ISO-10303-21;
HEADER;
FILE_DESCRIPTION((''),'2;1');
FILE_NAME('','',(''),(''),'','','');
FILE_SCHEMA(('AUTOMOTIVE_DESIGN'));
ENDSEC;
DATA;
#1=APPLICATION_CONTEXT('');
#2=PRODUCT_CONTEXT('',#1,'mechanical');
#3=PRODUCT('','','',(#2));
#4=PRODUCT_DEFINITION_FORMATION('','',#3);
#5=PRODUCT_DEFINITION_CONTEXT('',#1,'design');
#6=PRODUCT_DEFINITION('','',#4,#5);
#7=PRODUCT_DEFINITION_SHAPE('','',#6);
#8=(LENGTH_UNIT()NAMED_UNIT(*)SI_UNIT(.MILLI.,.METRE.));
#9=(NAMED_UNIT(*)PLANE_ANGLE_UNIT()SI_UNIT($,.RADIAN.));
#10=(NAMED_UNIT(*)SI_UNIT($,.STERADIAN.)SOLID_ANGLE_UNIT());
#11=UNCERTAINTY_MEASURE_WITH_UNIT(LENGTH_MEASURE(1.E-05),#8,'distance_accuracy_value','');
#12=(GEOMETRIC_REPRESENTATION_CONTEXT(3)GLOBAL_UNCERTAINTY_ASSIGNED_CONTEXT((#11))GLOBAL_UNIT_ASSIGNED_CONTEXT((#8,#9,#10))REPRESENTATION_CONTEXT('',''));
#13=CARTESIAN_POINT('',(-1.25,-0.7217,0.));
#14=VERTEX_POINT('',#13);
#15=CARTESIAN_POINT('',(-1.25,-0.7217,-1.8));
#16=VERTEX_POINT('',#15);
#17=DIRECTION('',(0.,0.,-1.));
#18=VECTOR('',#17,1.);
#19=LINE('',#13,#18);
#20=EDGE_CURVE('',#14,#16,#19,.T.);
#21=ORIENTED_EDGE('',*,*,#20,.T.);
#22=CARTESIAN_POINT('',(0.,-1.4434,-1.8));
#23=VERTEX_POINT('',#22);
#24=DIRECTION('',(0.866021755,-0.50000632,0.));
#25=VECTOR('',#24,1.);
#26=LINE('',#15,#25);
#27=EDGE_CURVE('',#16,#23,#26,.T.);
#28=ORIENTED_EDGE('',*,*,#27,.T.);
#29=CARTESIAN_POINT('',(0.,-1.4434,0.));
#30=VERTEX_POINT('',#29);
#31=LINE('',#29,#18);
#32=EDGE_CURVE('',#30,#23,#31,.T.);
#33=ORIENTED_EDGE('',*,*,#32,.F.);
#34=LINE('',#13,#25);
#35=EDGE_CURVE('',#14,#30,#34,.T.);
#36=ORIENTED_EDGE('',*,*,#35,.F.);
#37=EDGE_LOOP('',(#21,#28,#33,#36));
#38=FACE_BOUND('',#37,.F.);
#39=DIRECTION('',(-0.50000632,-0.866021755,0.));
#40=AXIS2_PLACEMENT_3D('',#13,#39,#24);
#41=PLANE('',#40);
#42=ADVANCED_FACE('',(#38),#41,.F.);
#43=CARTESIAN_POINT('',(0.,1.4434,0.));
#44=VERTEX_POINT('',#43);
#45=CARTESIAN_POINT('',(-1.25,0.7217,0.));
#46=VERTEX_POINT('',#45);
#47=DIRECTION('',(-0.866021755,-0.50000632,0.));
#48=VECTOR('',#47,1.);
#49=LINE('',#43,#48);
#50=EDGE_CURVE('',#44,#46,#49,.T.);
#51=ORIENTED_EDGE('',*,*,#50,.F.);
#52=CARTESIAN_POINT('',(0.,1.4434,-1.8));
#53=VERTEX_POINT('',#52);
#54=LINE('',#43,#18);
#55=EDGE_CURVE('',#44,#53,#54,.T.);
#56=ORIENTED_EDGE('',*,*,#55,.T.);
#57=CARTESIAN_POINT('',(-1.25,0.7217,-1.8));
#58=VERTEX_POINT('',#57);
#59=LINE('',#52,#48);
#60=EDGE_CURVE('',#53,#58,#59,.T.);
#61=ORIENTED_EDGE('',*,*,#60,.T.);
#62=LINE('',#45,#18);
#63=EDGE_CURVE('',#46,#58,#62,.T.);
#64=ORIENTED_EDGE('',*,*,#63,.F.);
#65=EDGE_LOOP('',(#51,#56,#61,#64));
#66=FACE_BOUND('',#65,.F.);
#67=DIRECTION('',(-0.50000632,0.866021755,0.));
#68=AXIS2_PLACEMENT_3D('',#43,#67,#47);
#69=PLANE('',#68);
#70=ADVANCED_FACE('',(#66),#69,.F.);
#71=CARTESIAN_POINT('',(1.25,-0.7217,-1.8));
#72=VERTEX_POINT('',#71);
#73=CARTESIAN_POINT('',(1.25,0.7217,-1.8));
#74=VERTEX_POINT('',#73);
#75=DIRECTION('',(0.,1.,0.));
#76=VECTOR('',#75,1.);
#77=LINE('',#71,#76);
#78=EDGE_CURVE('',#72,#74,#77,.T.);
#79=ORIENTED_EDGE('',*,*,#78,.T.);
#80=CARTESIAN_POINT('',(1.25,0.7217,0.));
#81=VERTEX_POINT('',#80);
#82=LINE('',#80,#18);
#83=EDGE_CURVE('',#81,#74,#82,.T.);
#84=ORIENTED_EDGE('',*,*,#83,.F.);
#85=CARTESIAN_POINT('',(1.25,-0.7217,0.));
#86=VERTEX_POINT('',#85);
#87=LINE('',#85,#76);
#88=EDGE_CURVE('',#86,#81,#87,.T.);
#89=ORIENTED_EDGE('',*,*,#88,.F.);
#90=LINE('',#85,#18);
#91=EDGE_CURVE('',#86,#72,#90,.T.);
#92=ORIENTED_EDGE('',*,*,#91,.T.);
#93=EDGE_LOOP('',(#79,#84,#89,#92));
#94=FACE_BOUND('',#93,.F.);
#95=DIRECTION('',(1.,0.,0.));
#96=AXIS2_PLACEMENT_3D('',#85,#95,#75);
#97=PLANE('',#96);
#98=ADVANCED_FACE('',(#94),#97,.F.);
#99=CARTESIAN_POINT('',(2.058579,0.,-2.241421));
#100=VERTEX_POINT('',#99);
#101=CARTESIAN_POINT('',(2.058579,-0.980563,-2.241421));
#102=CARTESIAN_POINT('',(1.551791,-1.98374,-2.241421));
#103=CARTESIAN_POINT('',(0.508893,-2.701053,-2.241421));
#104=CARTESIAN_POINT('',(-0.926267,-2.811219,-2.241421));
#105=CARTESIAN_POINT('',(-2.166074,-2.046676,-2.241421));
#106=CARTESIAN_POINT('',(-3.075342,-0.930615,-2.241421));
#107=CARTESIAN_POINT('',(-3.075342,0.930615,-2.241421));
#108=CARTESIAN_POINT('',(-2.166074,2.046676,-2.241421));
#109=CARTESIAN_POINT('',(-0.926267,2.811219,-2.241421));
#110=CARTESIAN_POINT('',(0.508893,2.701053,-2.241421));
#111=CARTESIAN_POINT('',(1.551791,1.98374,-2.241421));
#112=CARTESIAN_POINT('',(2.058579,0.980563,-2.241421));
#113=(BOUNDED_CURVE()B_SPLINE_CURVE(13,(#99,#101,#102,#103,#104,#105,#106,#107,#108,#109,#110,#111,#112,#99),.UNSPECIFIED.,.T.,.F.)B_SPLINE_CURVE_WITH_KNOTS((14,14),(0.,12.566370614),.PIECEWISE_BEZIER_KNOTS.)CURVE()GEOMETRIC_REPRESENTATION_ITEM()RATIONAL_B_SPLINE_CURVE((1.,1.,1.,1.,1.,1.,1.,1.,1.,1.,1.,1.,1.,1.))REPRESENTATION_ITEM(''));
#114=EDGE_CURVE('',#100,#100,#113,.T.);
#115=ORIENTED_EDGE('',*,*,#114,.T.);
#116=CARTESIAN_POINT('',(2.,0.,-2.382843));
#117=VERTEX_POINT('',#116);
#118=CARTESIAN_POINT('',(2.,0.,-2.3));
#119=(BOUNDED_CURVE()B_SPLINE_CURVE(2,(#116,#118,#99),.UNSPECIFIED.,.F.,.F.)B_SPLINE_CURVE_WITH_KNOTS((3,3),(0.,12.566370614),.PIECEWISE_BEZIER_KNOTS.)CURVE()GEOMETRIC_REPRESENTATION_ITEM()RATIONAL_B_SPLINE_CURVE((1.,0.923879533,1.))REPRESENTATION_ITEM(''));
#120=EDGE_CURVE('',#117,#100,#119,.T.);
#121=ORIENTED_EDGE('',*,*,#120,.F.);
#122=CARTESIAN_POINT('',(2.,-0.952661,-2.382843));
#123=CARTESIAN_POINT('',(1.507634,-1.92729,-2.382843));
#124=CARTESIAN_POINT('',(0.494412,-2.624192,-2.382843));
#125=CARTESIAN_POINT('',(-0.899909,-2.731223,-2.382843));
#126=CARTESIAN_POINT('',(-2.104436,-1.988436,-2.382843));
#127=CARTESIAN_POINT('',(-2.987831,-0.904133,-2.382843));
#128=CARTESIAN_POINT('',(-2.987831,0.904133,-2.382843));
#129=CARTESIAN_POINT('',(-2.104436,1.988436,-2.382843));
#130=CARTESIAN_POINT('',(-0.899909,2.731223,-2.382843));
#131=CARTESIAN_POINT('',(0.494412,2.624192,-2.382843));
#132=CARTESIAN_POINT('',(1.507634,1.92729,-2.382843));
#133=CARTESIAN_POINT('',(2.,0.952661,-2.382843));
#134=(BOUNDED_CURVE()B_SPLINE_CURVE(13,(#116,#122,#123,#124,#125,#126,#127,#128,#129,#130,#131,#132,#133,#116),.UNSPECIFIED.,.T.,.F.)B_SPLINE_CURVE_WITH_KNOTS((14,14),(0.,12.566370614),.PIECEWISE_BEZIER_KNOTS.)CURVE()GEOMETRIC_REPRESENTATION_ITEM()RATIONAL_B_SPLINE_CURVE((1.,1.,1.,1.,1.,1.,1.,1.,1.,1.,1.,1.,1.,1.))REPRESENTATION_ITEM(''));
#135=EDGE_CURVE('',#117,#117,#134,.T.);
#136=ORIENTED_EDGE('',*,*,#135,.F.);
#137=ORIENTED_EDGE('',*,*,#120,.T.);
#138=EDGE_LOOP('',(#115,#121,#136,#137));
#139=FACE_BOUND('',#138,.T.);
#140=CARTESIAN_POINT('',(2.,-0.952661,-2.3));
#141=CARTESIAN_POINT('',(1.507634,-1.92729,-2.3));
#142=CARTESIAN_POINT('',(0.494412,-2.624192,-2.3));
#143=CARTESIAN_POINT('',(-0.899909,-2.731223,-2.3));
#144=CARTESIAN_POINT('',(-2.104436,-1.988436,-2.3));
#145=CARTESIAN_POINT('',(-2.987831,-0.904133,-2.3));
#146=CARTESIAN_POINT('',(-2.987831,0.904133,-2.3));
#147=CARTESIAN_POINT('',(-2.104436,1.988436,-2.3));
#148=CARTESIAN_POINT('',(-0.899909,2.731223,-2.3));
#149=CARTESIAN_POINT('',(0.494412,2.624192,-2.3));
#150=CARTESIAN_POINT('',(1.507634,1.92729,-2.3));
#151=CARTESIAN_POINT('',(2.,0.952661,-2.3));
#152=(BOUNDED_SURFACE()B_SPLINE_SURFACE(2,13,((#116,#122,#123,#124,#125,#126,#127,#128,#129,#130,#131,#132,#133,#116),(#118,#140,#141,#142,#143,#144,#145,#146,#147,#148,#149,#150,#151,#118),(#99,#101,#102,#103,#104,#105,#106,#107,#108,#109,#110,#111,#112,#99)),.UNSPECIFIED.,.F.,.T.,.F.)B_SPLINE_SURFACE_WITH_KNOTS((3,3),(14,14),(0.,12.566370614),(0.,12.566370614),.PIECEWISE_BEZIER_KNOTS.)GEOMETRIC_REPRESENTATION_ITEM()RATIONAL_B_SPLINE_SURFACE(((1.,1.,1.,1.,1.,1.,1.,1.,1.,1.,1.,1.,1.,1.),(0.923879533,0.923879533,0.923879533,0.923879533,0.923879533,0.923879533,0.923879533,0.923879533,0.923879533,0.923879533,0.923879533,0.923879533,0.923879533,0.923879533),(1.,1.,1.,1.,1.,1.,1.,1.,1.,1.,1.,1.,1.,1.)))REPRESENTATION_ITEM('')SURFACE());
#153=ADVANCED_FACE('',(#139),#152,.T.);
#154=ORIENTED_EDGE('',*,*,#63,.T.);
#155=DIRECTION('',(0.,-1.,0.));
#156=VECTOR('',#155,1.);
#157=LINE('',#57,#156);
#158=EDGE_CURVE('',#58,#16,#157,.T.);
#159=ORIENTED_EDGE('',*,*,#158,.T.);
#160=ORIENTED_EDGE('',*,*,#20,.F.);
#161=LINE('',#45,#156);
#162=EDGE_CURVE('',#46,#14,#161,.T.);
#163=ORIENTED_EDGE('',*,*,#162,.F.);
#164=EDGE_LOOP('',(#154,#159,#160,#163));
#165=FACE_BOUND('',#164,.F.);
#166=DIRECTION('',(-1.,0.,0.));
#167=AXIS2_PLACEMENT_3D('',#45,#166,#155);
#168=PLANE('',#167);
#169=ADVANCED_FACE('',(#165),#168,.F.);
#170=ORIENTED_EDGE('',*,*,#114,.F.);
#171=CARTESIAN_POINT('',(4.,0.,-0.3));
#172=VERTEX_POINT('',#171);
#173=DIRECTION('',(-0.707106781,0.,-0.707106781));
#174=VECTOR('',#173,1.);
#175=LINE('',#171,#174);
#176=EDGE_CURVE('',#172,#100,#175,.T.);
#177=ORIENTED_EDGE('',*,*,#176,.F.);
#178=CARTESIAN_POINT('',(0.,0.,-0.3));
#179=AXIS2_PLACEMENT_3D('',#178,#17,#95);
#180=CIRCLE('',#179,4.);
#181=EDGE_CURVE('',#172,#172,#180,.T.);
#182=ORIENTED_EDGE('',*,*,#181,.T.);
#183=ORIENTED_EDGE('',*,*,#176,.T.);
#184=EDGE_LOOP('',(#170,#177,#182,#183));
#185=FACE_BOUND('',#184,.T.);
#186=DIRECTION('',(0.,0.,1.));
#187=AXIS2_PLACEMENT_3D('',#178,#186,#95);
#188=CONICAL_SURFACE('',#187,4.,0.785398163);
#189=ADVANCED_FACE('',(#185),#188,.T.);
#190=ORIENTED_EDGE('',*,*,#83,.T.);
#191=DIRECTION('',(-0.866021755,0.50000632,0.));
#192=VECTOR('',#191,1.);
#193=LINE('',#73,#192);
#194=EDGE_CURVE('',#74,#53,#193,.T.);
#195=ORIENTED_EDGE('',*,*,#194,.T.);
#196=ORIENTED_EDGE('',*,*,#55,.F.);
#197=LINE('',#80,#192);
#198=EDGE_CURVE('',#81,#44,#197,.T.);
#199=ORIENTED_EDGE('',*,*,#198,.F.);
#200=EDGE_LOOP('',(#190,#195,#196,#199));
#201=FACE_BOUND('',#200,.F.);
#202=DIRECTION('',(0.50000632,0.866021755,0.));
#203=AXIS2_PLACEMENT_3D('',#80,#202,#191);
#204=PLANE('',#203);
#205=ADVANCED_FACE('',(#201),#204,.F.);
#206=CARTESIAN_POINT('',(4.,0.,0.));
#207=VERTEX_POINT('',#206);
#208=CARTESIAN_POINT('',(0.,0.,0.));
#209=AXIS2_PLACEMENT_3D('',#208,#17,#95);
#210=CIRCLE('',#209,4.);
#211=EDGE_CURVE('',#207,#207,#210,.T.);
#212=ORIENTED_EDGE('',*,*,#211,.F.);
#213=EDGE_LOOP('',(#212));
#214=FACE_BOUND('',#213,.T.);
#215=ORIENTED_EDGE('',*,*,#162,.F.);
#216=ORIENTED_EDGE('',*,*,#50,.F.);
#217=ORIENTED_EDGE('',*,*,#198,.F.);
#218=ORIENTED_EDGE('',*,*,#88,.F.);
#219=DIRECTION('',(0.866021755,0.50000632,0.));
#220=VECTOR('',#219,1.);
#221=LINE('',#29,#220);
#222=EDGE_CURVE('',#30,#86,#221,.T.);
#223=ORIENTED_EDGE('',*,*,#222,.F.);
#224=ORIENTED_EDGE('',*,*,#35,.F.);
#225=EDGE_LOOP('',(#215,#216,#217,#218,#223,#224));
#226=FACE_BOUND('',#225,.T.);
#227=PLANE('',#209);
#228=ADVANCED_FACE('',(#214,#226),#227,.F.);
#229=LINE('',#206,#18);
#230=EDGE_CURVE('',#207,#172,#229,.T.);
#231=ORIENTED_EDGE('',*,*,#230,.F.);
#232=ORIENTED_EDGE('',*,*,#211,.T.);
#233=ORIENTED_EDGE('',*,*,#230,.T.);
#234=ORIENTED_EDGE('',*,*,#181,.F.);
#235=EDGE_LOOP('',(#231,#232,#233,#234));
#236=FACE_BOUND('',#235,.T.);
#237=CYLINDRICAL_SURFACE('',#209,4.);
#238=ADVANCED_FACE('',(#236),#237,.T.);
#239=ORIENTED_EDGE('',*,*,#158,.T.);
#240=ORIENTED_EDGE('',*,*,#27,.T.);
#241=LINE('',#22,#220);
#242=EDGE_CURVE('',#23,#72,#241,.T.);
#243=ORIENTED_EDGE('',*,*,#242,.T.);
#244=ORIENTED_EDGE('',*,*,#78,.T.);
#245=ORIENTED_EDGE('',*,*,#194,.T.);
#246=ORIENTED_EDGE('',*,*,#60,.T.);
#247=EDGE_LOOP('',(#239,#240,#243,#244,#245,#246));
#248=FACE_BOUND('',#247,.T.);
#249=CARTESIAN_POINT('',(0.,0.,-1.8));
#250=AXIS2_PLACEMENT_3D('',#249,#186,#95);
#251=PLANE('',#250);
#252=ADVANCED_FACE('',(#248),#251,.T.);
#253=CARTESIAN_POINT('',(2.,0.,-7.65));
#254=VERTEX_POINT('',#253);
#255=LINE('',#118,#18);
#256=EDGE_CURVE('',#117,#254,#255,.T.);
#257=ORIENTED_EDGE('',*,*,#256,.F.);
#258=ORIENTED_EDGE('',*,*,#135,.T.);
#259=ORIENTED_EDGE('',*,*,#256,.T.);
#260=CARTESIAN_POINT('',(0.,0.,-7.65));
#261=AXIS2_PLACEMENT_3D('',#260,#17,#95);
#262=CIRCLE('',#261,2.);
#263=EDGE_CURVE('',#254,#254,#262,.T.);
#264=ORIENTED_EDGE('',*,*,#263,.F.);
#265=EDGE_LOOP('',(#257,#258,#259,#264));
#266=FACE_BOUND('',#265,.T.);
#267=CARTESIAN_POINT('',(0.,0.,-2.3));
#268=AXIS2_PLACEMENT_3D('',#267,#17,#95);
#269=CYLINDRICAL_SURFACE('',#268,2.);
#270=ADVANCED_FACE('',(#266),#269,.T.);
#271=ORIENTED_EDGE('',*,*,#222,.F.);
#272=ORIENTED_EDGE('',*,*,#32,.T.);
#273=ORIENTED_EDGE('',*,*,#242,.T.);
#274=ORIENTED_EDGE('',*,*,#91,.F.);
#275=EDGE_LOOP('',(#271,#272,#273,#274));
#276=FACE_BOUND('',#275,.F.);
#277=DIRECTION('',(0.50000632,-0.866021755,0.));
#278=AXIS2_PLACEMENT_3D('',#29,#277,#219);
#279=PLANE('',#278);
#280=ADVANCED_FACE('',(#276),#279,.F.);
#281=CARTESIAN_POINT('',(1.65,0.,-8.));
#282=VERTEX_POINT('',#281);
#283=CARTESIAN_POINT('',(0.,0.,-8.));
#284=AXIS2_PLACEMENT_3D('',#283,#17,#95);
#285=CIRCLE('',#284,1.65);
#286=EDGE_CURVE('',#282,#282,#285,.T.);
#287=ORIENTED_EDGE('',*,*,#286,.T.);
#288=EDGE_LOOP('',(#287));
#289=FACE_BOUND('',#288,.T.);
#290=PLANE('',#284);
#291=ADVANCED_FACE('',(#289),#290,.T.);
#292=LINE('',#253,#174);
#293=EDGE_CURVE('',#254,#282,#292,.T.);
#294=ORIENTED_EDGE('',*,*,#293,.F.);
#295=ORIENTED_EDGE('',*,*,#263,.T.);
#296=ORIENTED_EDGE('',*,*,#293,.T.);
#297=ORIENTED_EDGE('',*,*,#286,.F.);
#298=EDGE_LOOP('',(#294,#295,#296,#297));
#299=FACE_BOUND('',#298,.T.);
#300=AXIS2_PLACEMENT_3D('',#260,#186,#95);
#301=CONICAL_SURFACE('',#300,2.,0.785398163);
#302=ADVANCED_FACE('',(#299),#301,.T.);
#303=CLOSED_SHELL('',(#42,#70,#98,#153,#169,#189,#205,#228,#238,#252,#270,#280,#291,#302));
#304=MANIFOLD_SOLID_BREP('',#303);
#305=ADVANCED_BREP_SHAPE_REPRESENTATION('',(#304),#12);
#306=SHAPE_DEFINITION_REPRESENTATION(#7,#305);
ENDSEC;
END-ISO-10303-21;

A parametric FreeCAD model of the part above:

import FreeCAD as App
import Part
import Sketcher
Q = App.Units.Quantity


def edges_at(feature, points):
    """Names of the edges that pass closest to the given points."""
    edges = feature.Shape.Edges
    near = lambda p: min(range(len(edges)), key=lambda i: edges[i].distToShape(Part.Vertex(*p))[0])
    return sorted({f"Edge{near(p) + 1}" for p in points})

doc = App.newDocument("Part")
params = doc.addObject("Spreadsheet::Sheet", "Params")
for row, (alias, value) in enumerate([
    ("sketch1_width", "2 mm"),
    ("sketch1_width2", "4 mm"),
    ("sketch1_height", "8 mm"),
    ("sketch1_height2", "0.3 mm"),
    ("revolution_angle", "360 deg"),
    ("pocket1_length", "1.8 mm"),
    ("fillet_radius", "0.2 mm"),
    ("chamfer_size", "0.35 mm"),
], start=1):
    params.set(f"A{row}", alias)
    params.set(f"B{row}", "=" + value)
    params.setAlias(f"B{row}", alias)

body = doc.addObject("PartDesign::Body", "Body")

sketch1 = body.newObject("Sketcher::SketchObject", "Sketch")
sketch1.AttachmentSupport = (doc.getObject("XZ_Plane"), [""])
sketch1.MapMode = "FlatFace"
sketch1.addGeometry([
    Part.LineSegment(App.Vector(2, -2.3, 0), App.Vector(2, -8, 0)),
    Part.LineSegment(App.Vector(2, -8, 0), App.Vector(0, -8, 0)),
    Part.LineSegment(App.Vector(0, -8, 0), App.Vector(0, 0, 0)),
    Part.LineSegment(App.Vector(0, 0, 0), App.Vector(4, 0, 0)),
    Part.LineSegment(App.Vector(4, 0, 0), App.Vector(4, -0.3, 0)),
    Part.LineSegment(App.Vector(4, -0.3, 0), App.Vector(2, -2.3, 0)),
], False)
sketch1.addConstraint([
    Sketcher.Constraint("Coincident", 0, 2, 1, 1),
    Sketcher.Constraint("Coincident", 1, 2, 2, 1),
    Sketcher.Constraint("Coincident", 2, 2, 3, 1),
    Sketcher.Constraint("Coincident", 3, 2, 4, 1),
    Sketcher.Constraint("Coincident", 4, 2, 5, 1),
    Sketcher.Constraint("Coincident", 5, 2, 0, 1),
    Sketcher.Constraint("Vertical", 0),
    Sketcher.Constraint("Horizontal", 1),
    Sketcher.Constraint("Vertical", 2),
    Sketcher.Constraint("Horizontal", 3),
    Sketcher.Constraint("Vertical", 4),
    Sketcher.Constraint("Coincident", 2, 2, -1, 1),
    Sketcher.Constraint("DistanceX", 1, 2, 1, 1, Q("2 mm")),
    Sketcher.Constraint("DistanceX", 3, 1, 3, 2, Q("4 mm")),
    Sketcher.Constraint("DistanceY", 2, 1, 2, 2, Q("8 mm")),
    Sketcher.Constraint("DistanceY", 4, 2, 4, 1, Q("0.3 mm")),
    Sketcher.Constraint("DistanceY", 5, 2, 4, 2, Q("2 mm")),
])
sketch1.setExpression("Constraints[12]", "Params.sketch1_width")
sketch1.setExpression("Constraints[13]", "Params.sketch1_width2")
sketch1.setExpression("Constraints[14]", "Params.sketch1_height")
sketch1.setExpression("Constraints[15]", "Params.sketch1_height2")
revolution = body.newObject("PartDesign::Revolution", "Revolution")
revolution.Profile = sketch1
revolution.ReferenceAxis = (sketch1, ["V_Axis"])
revolution.setExpression("Angle", "Params.revolution_angle")

sketch2 = body.newObject("Sketcher::SketchObject", "Sketch001")
sketch2.AttachmentSupport = (doc.getObject("XY_Plane"), [""])
sketch2.MapMode = "FlatFace"
sketch2.addGeometry([
    Part.LineSegment(App.Vector(0, 1.4434, 0), App.Vector(-1.25, 0.7217, 0)),
    Part.LineSegment(App.Vector(-1.25, 0.7217, 0), App.Vector(-1.25, -0.7217, 0)),
    Part.LineSegment(App.Vector(-1.25, -0.7217, 0), App.Vector(0, -1.4434, 0)),
    Part.LineSegment(App.Vector(0, -1.4434, 0), App.Vector(1.25, -0.7217, 0)),
    Part.LineSegment(App.Vector(1.25, -0.7217, 0), App.Vector(1.25, 0.7217, 0)),
    Part.LineSegment(App.Vector(1.25, 0.7217, 0), App.Vector(0, 1.4434, 0)),
], False)
sketch2.addConstraint([
    Sketcher.Constraint("Coincident", 0, 2, 1, 1),
    Sketcher.Constraint("Coincident", 1, 2, 2, 1),
    Sketcher.Constraint("Coincident", 2, 2, 3, 1),
    Sketcher.Constraint("Coincident", 3, 2, 4, 1),
    Sketcher.Constraint("Coincident", 4, 2, 5, 1),
    Sketcher.Constraint("Coincident", 5, 2, 0, 1),
    Sketcher.Constraint("Vertical", 1),
    Sketcher.Constraint("Vertical", 4),
    Sketcher.Constraint("Symmetric", 0, 2, 3, 2, -1, 1),
    Sketcher.Constraint("Symmetric", 2, 2, 5, 2, -1, 1),
    Sketcher.Constraint("PointOnObject", 2, 2, -2),
    Sketcher.Constraint("Parallel", 2, 5),
    Sketcher.Constraint("Horizontal", 1, 2, 3, 2),
    Sketcher.Constraint("DistanceX", 1, 2, 3, 2, Q("2.5 mm")),
    Sketcher.Constraint("Angle", 0, Q("-149.9996 deg")),
    Sketcher.Constraint("DistanceY", 1, 2, 1, 1, Q("1.4434 mm")),
])
pocket1 = body.newObject("PartDesign::Pocket", "Pocket")
pocket1.Profile = sketch2
pocket1.setExpression("Length", "Params.pocket1_length")
doc.recompute()

fillet = body.newObject("PartDesign::Fillet", "Fillet")
fillet.Base = (pocket1, edges_at(pocket1, [(-2, 0, -2.3)]))
fillet.setExpression("Radius", "Params.fillet_radius")
doc.recompute()

chamfer = body.newObject("PartDesign::Chamfer", "Chamfer")
chamfer.Base = (fillet, edges_at(fillet, [(-2, 0, -8)]))
chamfer.setExpression("Size", "Params.chamfer_size")

doc.recompute()
